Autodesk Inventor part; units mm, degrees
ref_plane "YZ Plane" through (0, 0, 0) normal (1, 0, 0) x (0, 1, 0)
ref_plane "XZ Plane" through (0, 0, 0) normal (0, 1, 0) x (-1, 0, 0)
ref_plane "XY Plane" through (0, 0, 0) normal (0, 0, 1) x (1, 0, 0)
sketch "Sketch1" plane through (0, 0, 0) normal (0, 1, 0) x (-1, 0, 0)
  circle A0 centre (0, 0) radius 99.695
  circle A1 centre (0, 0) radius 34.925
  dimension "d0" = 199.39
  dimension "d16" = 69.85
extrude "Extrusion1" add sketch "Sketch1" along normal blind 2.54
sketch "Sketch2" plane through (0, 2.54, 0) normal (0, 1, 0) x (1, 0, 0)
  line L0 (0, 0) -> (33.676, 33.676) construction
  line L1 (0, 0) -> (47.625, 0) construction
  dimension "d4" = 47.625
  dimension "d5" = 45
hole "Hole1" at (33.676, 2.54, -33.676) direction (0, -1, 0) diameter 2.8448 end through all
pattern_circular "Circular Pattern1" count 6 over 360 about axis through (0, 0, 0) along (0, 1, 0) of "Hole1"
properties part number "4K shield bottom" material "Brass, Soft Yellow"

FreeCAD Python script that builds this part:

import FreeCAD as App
import Part
import Sketcher
from FreeCAD import Vector
Q = App.Units.Quantity

doc = App.newDocument("Part")
body = doc.addObject("PartDesign::Body", "Body")

# Sketch on XZ plane
sketch1 = body.newObject("Sketcher::SketchObject", "Sketch")
sketch1.AttachmentSupport = (doc.getObject("XZ_Plane"), [""])
sketch1.MapMode = "FlatFace"
sketch1.addGeometry(Part.Circle(Vector(0, 0, 0), Vector(0, 0, 1), 100), False)
sketch1.addGeometry(Part.Circle(Vector(0, 0, 0), Vector(0, 0, 1), 35), False)
sketch1.addConstraint(Sketcher.Constraint("Coincident", 0, 3, -1, 1))
sketch1.addConstraint(Sketcher.Constraint("Coincident", 1, 3, -1, 1))
sketch1.addConstraint(Sketcher.Constraint("Diameter", 0, Q("7.85 in")))
sketch1.addConstraint(Sketcher.Constraint("Diameter", 1, Q("2.75 in")))
pad1 = body.newObject("PartDesign::Pad", "Pad")
pad1.Profile = sketch1
pad1.Length = Q("0.1 in")
pad1.Reversed = True

# Sketch on XZ plane
sketch2 = body.newObject("Sketcher::SketchObject", "Sketch001")
sketch2.AttachmentSupport = (doc.getObject("XZ_Plane"), [""])
sketch2.MapMode = "FlatFace"
sketch2.AttachmentOffset = App.Placement(Vector(0, 0, -0.1 * 25.4), App.Rotation())
sketch2.addGeometry(Part.Circle(Vector(33.7, -33.7, 0), Vector(0, 0, 1), 1.4), False)
sketch2.addConstraint(Sketcher.Constraint("Diameter", 0, Q("0.112 in")))
sketch2.addConstraint(Sketcher.Constraint("DistanceX", -1, 1, 0, 3, Q("33.676 mm")))
sketch2.addConstraint(Sketcher.Constraint("DistanceY", 0, 3, -1, 1, Q("33.676 mm")))
doc.recompute()
hole = body.newObject("PartDesign::Hole", "Hole")
hole.Profile = sketch2
hole.ThreadType = "None"
hole.Diameter = Q("0.112 in")
hole.DepthType = "ThroughAll"
hole.Reversed = True
doc.recompute()

polarpattern = body.newObject("PartDesign::PolarPattern", "PolarPattern")
polarpattern.Originals = [hole]
polarpattern.Axis = (doc.getObject("Y_Axis"), [""])
polarpattern.Angle = 360
polarpattern.Occurrences = 6
body.Tip = polarpattern

doc.recompute()
